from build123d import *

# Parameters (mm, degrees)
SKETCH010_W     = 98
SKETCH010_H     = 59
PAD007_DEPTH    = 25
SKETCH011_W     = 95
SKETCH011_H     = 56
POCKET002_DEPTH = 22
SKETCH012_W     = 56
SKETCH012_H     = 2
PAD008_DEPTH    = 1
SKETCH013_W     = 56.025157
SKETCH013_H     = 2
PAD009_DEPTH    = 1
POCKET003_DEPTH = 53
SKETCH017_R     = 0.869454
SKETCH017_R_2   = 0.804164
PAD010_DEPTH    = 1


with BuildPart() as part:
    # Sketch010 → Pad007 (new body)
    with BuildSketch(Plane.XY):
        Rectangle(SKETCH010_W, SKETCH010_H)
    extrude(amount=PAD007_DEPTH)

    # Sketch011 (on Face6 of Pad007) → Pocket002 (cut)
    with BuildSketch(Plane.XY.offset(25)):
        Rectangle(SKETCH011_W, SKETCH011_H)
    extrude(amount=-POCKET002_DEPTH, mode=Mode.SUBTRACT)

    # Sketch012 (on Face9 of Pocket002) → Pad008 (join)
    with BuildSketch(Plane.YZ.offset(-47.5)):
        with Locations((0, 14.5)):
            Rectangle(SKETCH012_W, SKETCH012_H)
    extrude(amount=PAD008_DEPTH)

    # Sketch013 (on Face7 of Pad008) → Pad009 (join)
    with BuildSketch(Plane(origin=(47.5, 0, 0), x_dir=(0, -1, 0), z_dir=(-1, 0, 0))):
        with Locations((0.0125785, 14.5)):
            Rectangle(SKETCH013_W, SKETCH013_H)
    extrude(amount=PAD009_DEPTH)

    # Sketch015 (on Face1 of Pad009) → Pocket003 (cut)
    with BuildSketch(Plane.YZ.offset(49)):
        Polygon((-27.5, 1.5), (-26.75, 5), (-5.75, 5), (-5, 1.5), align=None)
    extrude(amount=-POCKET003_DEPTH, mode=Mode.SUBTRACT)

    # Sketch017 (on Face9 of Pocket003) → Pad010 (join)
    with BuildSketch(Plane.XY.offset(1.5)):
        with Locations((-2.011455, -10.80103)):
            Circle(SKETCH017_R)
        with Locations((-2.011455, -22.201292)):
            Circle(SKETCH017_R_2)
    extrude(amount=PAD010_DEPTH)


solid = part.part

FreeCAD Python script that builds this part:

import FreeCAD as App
import Part
import Sketcher
from FreeCAD import Vector
Q = App.Units.Quantity


def add_polygon(sketch, points):
    """Adds a closed chain of lines whose ends are joined by coincident constraints."""
    first, n = sketch.GeometryCount, len(points)
    for a, b in zip(points, points[1:] + points[:1]):
        sketch.addGeometry(Part.LineSegment(App.Vector(*a, 0), App.Vector(*b, 0)), False)
    for i in range(n):
        sketch.addConstraint(Sketcher.Constraint("Coincident", first + i, 2, first + (i + 1) % n, 1))

doc = App.newDocument("Part")
body = doc.addObject("PartDesign::Body", "Body")

sketch1 = body.newObject("Sketcher::SketchObject", "Sketch")
sketch1.AttachmentSupport = (doc.getObject("XY_Plane"), [""])
sketch1.MapMode = "FlatFace"
add_polygon(sketch1, [(-49, 29.5), (-49, -29.5), (49, -29.5), (49, 29.5)])
sketch1.addConstraint(Sketcher.Constraint("Vertical", 0))
sketch1.addConstraint(Sketcher.Constraint("Horizontal", 1))
sketch1.addConstraint(Sketcher.Constraint("Vertical", 2))
sketch1.addConstraint(Sketcher.Constraint("Horizontal", 3))
sketch1.addConstraint(Sketcher.Constraint("Symmetric", 0, 2, 2, 2, -1, 1))
sketch1.addConstraint(Sketcher.Constraint("DistanceX", 1, 1, 1, 2, Q("98 mm")))
sketch1.addConstraint(Sketcher.Constraint("DistanceY", 0, 2, 0, 1, Q("59 mm")))
pad1 = body.newObject("PartDesign::Pad", "Pad")
pad1.Profile = sketch1
pad1.Length = 25

sketch2 = body.newObject("Sketcher::SketchObject", "Sketch001")
sketch2.AttachmentSupport = (doc.getObject("XY_Plane"), [""])
sketch2.MapMode = "FlatFace"
sketch2.AttachmentOffset = App.Placement(Vector(0, 0, 25), App.Rotation())
add_polygon(sketch2, [(-47.5, 28), (-47.5, -28), (47.5, -28), (47.5, 28)])
sketch2.addConstraint(Sketcher.Constraint("Vertical", 0))
sketch2.addConstraint(Sketcher.Constraint("Horizontal", 1))
sketch2.addConstraint(Sketcher.Constraint("Vertical", 2))
sketch2.addConstraint(Sketcher.Constraint("Horizontal", 3))
sketch2.addConstraint(Sketcher.Constraint("Symmetric", 0, 2, 2, 2, -1, 1))
sketch2.addConstraint(Sketcher.Constraint("DistanceX", 1, 1, 1, 2, Q("95 mm")))
sketch2.addConstraint(Sketcher.Constraint("DistanceY", 0, 2, 0, 1, Q("56 mm")))
pocket1 = body.newObject("PartDesign::Pocket", "Pocket")
pocket1.Profile = sketch2
pocket1.Length = 22

sketch3 = body.newObject("Sketcher::SketchObject", "Sketch002")
sketch3.AttachmentSupport = (doc.getObject("YZ_Plane"), [""])
sketch3.MapMode = "FlatFace"
sketch3.AttachmentOffset = App.Placement(Vector(0, 0, -47.5), App.Rotation())
add_polygon(sketch3, [(-28, 15.5), (-28, 13.5), (28, 13.5), (28, 15.5)])
sketch3.addConstraint(Sketcher.Constraint("Vertical", 0))
sketch3.addConstraint(Sketcher.Constraint("Horizontal", 1))
sketch3.addConstraint(Sketcher.Constraint("Vertical", 2))
sketch3.addConstraint(Sketcher.Constraint("Horizontal", 3))
sketch3.addConstraint(Sketcher.Constraint("DistanceX", 1, 1, 1, 2, Q("56 mm")))
sketch3.addConstraint(Sketcher.Constraint("DistanceY", 0, 2, 0, 1, Q("2 mm")))
sketch3.addConstraint(Sketcher.Constraint("DistanceX", 0, 2, -1, 1, Q("28 mm")))
sketch3.addConstraint(Sketcher.Constraint("DistanceY", -1, 1, 0, 2, Q("13.5 mm")))
pad2 = body.newObject("PartDesign::Pad", "Pad001")
pad2.Profile = sketch3
pad2.Length = 1

sketch4 = body.newObject("Sketcher::SketchObject", "Sketch003")
sketch4.AttachmentSupport = (doc.getObject("YZ_Plane"), [""])
sketch4.MapMode = "FlatFace"
sketch4.AttachmentOffset = App.Placement(Vector(0, 0, 47.5), App.Rotation())
add_polygon(sketch4, [(28, 15.5), (28, 13.5), (-28.025157, 13.5), (-28.025157, 15.5)])
sketch4.addConstraint(Sketcher.Constraint("Vertical", 0))
sketch4.addConstraint(Sketcher.Constraint("Horizontal", 1))
sketch4.addConstraint(Sketcher.Constraint("Vertical", 2))
sketch4.addConstraint(Sketcher.Constraint("Horizontal", 3))
sketch4.addConstraint(Sketcher.Constraint("DistanceY", 0, 2, 0, 1, Q("2 mm")))
sketch4.addConstraint(Sketcher.Constraint("DistanceX", -1, 1, 0, 2, Q("28 mm")))
sketch4.addConstraint(Sketcher.Constraint("DistanceY", -1, 1, 0, 2, Q("13.5 mm")))
sketch4.addConstraint(Sketcher.Constraint("DistanceX", 1, 2, 1, 1, Q("56.025157 mm")))
pad3 = body.newObject("PartDesign::Pad", "Pad002")
pad3.Profile = sketch4
pad3.Length = 1
pad3.Reversed = True

sketch5 = body.newObject("Sketcher::SketchObject", "Sketch004")
sketch5.AttachmentSupport = (doc.getObject("YZ_Plane"), [""])
sketch5.MapMode = "FlatFace"
sketch5.AttachmentOffset = App.Placement(Vector(0, 0, 49), App.Rotation())
add_polygon(sketch5, [(-26.75, 5), (-27.5, 1.5), (-5, 1.5), (-5.75, 5)])
sketch5.addConstraint(Sketcher.Constraint("Horizontal", 1))
sketch5.addConstraint(Sketcher.Constraint("Horizontal", 3))
sketch5.addConstraint(Sketcher.Constraint("Equal", 0, 2))
sketch5.addConstraint(Sketcher.Constraint("DistanceX", 3, 2, 3, 1, Q("21 mm")))
sketch5.addConstraint(Sketcher.Constraint("DistanceX", 1, 1, 1, 2, Q("22.5 mm")))
sketch5.addConstraint(Sketcher.Constraint("DistanceX", 1, 2, -1, 1, Q("5 mm")))
sketch5.addConstraint(Sketcher.Constraint("DistanceY", -1, 1, 2, 2, Q("5 mm")))
sketch5.addConstraint(Sketcher.Constraint("DistanceY", -1, 1, 0, 2, Q("1.5 mm")))
pocket2 = body.newObject("PartDesign::Pocket", "Pocket001")
pocket2.Profile = sketch5
pocket2.Length = 53

sketch6 = body.newObject("Sketcher::SketchObject", "Sketch005")
sketch6.AttachmentSupport = (doc.getObject("XY_Plane"), [""])
sketch6.MapMode = "FlatFace"
sketch6.AttachmentOffset = App.Placement(Vector(0, 0, 1.5), App.Rotation())
sketch6.addGeometry(Part.Circle(Vector(-2.011455, -10.80103, 0), Vector(0, 0, 1), 0.869454), False)
sketch6.addGeometry(Part.Circle(Vector(-2.011455, -22.201292, 0), Vector(0, 0, 1), 0.804164), False)
sketch6.addConstraint(Sketcher.Constraint("Vertical", 0, 3, 1, 3))
sketch6.addConstraint(Sketcher.Constraint("Diameter", 0, Q("1.738908 mm")))
sketch6.addConstraint(Sketcher.Constraint("Diameter", 1, Q("1.608328 mm")))
sketch6.addConstraint(Sketcher.Constraint("DistanceY", 0, 3, -1, 1, Q("10.80103 mm")))
sketch6.addConstraint(Sketcher.Constraint("DistanceY", 1, 3, -1, 1, Q("22.201292 mm")))
sketch6.addConstraint(Sketcher.Constraint("DistanceX", 0, 3, -1, 1, Q("2.011455 mm")))
pad4 = body.newObject("PartDesign::Pad", "Pad003")
pad4.Profile = sketch6
pad4.Length = 1

doc.recompute()
